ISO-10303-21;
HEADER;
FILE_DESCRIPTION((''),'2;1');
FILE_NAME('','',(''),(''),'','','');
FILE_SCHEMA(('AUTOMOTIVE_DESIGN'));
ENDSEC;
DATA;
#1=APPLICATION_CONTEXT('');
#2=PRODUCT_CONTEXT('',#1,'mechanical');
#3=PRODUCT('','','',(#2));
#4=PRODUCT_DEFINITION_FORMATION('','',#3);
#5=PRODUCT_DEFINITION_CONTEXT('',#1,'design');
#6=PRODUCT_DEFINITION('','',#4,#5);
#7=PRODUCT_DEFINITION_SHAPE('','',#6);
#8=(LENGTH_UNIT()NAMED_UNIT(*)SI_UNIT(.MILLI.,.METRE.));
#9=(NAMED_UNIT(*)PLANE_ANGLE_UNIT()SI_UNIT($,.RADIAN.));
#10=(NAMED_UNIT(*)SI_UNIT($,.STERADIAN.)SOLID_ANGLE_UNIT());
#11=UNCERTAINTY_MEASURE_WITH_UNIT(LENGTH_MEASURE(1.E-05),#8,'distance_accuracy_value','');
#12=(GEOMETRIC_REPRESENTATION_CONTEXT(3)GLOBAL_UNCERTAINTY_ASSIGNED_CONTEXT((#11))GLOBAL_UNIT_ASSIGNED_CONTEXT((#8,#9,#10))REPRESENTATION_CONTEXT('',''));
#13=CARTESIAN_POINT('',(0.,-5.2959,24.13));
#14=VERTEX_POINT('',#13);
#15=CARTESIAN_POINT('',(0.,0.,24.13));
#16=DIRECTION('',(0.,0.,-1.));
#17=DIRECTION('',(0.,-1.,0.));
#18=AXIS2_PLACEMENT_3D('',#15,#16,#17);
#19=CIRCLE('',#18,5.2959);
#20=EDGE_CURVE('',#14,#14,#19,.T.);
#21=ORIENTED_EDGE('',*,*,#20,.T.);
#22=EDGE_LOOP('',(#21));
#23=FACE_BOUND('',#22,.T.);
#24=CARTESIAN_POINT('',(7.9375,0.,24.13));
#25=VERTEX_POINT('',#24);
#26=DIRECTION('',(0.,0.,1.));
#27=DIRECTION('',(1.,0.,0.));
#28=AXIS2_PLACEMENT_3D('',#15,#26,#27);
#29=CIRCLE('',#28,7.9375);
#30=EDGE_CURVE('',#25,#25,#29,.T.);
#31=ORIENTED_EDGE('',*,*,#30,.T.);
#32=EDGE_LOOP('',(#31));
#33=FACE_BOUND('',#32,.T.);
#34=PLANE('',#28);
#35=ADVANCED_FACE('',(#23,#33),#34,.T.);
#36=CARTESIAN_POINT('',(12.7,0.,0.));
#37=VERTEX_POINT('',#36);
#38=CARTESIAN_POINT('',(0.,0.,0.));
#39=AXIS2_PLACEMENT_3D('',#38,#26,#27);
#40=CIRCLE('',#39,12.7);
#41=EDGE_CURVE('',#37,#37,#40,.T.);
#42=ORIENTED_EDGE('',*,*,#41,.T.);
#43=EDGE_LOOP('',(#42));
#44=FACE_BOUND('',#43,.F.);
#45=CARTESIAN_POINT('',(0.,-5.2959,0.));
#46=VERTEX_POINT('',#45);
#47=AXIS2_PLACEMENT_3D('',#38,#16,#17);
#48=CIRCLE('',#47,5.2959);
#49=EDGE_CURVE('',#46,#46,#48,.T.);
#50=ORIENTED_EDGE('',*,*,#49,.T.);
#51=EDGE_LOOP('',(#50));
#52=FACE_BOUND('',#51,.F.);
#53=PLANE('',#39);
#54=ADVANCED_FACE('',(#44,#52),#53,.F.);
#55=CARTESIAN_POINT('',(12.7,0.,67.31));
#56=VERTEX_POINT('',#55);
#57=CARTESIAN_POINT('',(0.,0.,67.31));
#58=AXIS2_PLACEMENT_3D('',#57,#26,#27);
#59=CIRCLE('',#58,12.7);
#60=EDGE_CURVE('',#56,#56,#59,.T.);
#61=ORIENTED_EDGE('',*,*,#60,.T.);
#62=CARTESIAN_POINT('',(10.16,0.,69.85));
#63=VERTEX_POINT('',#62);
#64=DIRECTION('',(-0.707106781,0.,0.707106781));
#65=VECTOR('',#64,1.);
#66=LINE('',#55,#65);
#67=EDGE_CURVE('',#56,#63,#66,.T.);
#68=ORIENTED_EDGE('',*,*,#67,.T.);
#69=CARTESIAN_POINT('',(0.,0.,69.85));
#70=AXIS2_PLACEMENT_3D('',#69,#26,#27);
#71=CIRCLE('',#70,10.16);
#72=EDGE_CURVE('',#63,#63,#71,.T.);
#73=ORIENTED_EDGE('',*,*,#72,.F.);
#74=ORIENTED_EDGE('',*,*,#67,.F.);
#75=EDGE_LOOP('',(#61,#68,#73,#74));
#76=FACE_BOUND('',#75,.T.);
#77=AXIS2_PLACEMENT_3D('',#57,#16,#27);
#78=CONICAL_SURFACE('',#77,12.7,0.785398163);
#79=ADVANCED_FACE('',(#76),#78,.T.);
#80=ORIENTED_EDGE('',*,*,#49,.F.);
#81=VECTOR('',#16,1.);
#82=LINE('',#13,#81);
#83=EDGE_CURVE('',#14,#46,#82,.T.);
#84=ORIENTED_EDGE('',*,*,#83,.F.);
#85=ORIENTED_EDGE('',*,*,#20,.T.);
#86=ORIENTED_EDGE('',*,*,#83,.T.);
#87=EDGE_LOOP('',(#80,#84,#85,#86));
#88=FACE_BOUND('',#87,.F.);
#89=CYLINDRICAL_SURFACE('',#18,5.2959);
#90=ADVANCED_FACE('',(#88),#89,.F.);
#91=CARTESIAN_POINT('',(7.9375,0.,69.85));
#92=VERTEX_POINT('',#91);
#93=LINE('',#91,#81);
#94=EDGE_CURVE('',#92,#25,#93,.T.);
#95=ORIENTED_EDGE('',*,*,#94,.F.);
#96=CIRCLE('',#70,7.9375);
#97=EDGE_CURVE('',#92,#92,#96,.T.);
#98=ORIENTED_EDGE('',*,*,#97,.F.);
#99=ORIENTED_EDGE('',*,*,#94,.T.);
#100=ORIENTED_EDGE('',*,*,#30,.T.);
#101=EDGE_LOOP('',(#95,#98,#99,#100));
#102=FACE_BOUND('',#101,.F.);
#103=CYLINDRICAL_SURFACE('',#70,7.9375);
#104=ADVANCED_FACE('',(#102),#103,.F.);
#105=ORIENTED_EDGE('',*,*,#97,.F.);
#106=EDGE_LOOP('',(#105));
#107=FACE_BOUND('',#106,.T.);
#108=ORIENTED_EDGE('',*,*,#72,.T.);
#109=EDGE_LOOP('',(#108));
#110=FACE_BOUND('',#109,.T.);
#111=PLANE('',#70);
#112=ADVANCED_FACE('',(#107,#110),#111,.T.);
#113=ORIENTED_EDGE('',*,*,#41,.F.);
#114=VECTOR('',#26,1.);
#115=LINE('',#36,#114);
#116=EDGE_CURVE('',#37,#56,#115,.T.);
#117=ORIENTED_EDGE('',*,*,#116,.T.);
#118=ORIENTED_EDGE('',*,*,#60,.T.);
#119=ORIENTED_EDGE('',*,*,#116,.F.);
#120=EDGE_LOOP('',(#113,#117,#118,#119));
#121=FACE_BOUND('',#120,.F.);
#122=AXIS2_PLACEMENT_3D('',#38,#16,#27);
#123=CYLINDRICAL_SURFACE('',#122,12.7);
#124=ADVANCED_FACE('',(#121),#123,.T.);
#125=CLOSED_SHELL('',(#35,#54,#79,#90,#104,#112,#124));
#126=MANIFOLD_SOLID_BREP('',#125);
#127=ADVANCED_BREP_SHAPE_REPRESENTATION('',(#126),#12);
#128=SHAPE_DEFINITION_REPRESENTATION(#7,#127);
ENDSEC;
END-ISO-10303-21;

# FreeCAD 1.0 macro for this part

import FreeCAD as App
import Part
import Sketcher
Q = App.Units.Quantity


def edges_at(feature, points):
    """Names of the edges that pass closest to the given points."""
    edges = feature.Shape.Edges
    near = lambda p: min(range(len(edges)), key=lambda i: edges[i].distToShape(Part.Vertex(*p))[0])
    return sorted({f"Edge{near(p) + 1}" for p in points})

doc = App.newDocument("Part")
body = doc.addObject("PartDesign::Body", "Body")

# Sketch on XY plane
sketch1 = body.newObject("Sketcher::SketchObject", "Sketch")
sketch1.AttachmentSupport = (doc.getObject("XY_Plane"), [""])
sketch1.MapMode = "FlatFace"
sketch1.addGeometry(Part.Circle(App.Vector(0, 0, 0), App.Vector(0, 0, 1), 13), False)
sketch1.addConstraint([
    Sketcher.Constraint("Coincident", 0, 3, -1, 1),
    Sketcher.Constraint("Diameter", 0, Q("1 in")),
])
pad1 = body.newObject("PartDesign::Pad", "Pad")
pad1.Profile = sketch1
pad1.Length = Q("2.75 in")

# Sketch on XY plane
sketch2 = body.newObject("Sketcher::SketchObject", "Sketch001")
sketch2.AttachmentSupport = (doc.getObject("XY_Plane"), [""])
sketch2.MapMode = "FlatFace"
sketch2.AttachmentOffset = App.Placement(App.Vector(0, 0, 2.75 * 25.4), App.Rotation())
sketch2.addGeometry(Part.Circle(App.Vector(0, 0, 0), App.Vector(0, 0, 1), 8), False)
sketch2.addConstraint([
    Sketcher.Constraint("Coincident", 0, 3, -1, 1),
    Sketcher.Constraint("Diameter", 0, Q("0.625 in")),
])
pocket1 = body.newObject("PartDesign::Pocket", "Pocket")
pocket1.Profile = sketch2
pocket1.Length = Q("1.8 in")

# Sketch on XY plane
sketch3 = body.newObject("Sketcher::SketchObject", "Sketch002")
sketch3.AttachmentSupport = (doc.getObject("XY_Plane"), [""])
sketch3.MapMode = "FlatFace"
sketch3.AttachmentOffset = App.Placement(App.Vector(0, 0, 0.95 * 25.4), App.Rotation())
sketch3.addGeometry(Part.Circle(App.Vector(0, 0, 0), App.Vector(0, 0, 1), 5), False)
sketch3.addConstraint([
    Sketcher.Constraint("Coincident", 0, 3, -1, 1),
    Sketcher.Constraint("Diameter", 0, Q("0.417 in")),
])
doc.recompute()
hole = body.newObject("PartDesign::Hole", "Hole")
hole.Profile = sketch3
hole.ThreadType = "None"
hole.Diameter = Q("0.417 in")
hole.DepthType = "ThroughAll"
doc.recompute()

chamfer = body.newObject("PartDesign::Chamfer", "Chamfer")
chamfer.Base = (hole, edges_at(hole, [(-12.7, 0, 69.85)]))
chamfer.Size = Q("0.1 in")

doc.recompute()
